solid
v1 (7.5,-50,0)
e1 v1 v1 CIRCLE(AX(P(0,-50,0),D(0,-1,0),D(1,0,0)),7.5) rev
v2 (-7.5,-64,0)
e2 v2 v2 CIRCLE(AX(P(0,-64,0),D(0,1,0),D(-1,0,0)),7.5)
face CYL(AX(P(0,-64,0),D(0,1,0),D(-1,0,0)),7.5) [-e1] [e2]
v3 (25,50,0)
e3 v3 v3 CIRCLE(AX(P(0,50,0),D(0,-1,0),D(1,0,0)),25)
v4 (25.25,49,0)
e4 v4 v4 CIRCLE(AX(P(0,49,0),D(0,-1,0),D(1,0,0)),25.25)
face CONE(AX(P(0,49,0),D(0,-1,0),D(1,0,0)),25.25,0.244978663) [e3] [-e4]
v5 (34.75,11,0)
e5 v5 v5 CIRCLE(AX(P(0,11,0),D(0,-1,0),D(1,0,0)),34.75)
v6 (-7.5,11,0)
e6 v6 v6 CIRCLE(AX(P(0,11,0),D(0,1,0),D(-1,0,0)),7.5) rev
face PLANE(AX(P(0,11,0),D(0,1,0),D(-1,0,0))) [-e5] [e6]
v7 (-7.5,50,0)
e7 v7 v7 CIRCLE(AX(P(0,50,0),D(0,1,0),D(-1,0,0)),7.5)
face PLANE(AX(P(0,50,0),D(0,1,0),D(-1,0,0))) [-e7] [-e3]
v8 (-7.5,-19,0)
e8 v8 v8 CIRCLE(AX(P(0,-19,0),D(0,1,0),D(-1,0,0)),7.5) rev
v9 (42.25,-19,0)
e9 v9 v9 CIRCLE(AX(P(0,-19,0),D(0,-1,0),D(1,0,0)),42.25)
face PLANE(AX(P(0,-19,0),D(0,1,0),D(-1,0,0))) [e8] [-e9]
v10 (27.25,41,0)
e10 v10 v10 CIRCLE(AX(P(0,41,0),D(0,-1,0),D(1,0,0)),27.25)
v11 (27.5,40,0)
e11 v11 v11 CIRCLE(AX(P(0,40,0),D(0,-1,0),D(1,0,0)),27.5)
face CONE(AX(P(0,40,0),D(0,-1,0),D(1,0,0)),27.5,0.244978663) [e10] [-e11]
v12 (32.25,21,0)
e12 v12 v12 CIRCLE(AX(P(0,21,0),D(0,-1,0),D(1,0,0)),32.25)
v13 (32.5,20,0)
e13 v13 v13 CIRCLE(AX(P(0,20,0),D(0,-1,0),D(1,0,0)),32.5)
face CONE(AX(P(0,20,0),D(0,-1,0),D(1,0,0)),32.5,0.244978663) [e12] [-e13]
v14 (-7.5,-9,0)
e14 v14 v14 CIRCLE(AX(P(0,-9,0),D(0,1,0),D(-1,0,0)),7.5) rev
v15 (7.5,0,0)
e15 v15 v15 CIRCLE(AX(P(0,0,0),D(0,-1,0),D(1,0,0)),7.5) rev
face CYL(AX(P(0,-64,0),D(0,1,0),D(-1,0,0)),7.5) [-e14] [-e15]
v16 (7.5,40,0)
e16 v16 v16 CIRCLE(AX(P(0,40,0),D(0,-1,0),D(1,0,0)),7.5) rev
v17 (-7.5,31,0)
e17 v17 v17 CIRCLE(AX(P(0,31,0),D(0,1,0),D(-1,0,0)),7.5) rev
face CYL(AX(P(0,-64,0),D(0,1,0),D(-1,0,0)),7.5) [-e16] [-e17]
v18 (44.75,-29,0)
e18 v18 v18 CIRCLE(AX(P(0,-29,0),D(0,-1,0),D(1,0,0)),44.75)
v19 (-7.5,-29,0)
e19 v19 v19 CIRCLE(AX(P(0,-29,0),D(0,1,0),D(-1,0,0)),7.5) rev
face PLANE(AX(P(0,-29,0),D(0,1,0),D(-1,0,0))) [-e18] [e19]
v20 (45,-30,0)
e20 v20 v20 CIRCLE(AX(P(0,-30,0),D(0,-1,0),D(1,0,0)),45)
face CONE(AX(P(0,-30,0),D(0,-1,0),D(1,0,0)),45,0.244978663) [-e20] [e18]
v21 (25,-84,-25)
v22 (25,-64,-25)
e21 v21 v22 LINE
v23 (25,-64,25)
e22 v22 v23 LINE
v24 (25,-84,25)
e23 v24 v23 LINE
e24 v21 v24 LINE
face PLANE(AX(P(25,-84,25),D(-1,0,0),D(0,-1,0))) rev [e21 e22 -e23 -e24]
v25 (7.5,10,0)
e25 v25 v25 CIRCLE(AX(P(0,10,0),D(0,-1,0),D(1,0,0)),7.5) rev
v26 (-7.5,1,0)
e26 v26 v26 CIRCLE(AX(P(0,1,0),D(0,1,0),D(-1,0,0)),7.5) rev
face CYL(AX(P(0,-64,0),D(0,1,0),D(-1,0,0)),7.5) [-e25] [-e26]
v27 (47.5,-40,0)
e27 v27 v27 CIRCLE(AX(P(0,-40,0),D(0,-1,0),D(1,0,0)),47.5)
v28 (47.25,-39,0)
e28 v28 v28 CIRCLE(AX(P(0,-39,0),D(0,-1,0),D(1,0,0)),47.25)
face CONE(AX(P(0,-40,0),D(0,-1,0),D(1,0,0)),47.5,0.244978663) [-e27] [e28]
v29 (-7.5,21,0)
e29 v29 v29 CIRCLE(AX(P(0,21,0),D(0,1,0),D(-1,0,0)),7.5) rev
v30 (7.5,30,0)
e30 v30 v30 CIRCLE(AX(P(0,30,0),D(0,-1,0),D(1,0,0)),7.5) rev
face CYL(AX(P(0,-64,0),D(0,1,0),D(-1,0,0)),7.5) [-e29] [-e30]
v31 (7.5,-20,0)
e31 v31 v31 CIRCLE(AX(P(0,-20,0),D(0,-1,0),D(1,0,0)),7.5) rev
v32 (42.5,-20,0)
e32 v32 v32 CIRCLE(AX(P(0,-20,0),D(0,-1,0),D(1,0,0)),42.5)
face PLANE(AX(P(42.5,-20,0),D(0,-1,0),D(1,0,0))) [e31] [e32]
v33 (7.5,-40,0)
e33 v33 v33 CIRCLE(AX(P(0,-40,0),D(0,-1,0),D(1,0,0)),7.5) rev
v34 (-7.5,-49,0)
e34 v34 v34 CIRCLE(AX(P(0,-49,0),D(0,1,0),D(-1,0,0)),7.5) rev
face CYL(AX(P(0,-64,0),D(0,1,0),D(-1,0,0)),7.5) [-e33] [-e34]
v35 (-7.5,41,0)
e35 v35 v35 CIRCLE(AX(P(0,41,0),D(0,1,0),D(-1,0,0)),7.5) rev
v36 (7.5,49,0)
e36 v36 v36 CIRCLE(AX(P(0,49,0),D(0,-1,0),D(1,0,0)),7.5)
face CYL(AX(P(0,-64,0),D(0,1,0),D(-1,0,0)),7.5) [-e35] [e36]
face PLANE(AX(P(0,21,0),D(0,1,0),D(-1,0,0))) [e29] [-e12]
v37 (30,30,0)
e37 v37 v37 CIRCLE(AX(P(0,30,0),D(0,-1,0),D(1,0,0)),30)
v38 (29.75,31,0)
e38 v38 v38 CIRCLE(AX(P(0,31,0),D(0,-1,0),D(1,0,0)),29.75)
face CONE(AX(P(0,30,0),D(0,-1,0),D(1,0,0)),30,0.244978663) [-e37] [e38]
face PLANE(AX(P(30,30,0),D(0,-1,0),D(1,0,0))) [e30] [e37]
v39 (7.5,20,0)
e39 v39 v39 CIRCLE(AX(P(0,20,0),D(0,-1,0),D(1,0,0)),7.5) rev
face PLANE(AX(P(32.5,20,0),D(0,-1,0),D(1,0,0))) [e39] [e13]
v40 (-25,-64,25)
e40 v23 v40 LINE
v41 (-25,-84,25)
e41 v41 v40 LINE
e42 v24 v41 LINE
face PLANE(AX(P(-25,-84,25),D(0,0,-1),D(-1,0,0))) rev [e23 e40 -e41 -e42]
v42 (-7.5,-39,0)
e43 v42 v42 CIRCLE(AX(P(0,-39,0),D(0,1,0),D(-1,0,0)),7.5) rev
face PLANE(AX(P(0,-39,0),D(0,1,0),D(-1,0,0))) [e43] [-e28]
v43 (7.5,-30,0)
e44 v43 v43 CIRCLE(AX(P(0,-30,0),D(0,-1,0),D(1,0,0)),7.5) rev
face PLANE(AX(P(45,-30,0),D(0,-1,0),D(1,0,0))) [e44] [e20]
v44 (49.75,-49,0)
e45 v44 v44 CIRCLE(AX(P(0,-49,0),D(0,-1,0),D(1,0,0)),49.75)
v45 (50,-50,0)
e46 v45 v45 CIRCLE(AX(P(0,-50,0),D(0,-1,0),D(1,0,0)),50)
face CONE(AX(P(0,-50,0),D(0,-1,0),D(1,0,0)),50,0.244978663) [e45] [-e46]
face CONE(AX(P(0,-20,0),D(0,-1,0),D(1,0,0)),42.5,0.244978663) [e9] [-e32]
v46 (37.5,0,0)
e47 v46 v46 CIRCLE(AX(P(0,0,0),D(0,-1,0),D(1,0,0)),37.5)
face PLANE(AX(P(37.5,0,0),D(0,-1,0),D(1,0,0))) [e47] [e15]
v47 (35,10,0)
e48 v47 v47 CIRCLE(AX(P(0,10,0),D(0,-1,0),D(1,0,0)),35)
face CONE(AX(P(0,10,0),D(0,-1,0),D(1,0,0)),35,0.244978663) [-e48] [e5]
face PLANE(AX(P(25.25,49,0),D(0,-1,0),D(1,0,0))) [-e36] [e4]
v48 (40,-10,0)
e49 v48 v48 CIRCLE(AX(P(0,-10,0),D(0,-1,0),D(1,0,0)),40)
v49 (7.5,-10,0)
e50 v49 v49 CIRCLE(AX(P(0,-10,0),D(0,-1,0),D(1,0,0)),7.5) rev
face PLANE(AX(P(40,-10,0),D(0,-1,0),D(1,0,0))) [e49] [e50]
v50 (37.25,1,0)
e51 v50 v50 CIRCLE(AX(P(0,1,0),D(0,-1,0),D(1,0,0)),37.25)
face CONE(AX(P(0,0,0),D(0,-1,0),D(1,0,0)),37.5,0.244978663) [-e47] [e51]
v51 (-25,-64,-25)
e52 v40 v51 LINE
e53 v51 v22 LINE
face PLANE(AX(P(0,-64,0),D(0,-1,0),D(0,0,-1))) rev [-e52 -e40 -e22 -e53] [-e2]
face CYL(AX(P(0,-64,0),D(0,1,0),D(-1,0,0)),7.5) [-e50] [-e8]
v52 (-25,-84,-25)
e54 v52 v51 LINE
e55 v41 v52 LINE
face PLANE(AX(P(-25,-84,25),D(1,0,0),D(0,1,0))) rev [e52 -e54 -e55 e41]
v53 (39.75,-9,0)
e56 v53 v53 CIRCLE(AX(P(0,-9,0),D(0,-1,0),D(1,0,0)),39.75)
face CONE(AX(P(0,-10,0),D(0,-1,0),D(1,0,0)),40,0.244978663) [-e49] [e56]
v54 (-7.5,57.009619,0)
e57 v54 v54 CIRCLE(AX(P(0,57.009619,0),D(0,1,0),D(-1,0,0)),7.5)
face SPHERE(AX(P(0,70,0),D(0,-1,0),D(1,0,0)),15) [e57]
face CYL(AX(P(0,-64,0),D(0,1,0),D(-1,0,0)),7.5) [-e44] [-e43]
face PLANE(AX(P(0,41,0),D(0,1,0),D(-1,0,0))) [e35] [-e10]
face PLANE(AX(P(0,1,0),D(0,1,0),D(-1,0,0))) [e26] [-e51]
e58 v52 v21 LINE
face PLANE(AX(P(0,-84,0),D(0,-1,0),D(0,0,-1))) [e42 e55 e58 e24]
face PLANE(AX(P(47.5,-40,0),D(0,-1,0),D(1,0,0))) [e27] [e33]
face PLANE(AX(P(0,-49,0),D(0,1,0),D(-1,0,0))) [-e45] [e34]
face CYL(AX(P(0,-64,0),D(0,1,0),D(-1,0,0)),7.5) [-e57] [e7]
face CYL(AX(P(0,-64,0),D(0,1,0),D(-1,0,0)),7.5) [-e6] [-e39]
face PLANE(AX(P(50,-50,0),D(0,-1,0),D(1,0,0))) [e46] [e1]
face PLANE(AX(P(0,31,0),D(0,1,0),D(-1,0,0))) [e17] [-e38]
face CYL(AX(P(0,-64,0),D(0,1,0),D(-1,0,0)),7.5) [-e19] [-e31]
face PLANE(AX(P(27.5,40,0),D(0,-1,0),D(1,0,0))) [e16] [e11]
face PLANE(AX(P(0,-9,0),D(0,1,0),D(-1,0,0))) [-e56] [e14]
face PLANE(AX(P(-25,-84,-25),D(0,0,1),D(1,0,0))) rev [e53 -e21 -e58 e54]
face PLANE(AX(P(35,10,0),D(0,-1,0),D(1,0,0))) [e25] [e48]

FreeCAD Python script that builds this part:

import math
import FreeCAD as App
import Part
import Sketcher
Q = App.Units.Quantity


def add_polygon(sketch, points):
    """Adds a closed chain of lines whose ends are joined by coincident constraints."""
    first, n = sketch.GeometryCount, len(points)
    for a, b in zip(points, points[1:] + points[:1]):
        sketch.addGeometry(Part.LineSegment(App.Vector(*a, 0), App.Vector(*b, 0)), False)
    for i in range(n):
        sketch.addConstraint(Sketcher.Constraint("Coincident", first + i, 2, first + (i + 1) % n, 1))

doc = App.newDocument("Part")
body = doc.addObject("PartDesign::Body", "Body")
body.AllowCompound = True

sketch1 = doc.addObject("Sketcher::SketchObject", "Sketch")
body.addObject(sketch1)
sketch1.AttachmentSupport = (doc.XY_Plane, [""])
sketch1.MapMode = "FlatFace"
add_polygon(sketch1, [(25, 50), (0, 50), (0, 49), (25.2, 49)])
add_polygon(sketch1, [(0, -50), (50, -50), (49.8, -49), (0, -49)])
add_polygon(sketch1, [(47.2, -39), (0, -39), (0, -40), (47.5, -40)])
add_polygon(sketch1, [(44.8, -29), (0, -29), (0, -30), (45, -30)])
add_polygon(sketch1, [(42.2, -19), (0, -19), (0, -20), (42.5, -20)])
add_polygon(sketch1, [(39.8, -9), (0, -9), (0, -10), (40, -10)])
add_polygon(sketch1, [(37.2, 1), (0, 1), (0, 0), (37.5, 0)])
add_polygon(sketch1, [(34.8, 11), (0, 11), (0, 10), (35, 10)])
add_polygon(sketch1, [(32.2, 21), (0, 21), (0, 20), (32.5, 20)])
add_polygon(sketch1, [(29.8, 31), (0, 31), (0, 30), (30, 30)])
add_polygon(sketch1, [(27.2, 41), (0, 41), (0, 40), (27.5, 40)])
sketch1.addConstraint([
    Sketcher.Constraint("Horizontal", 0),
    Sketcher.Constraint("Vertical", 1),
    Sketcher.Constraint("Horizontal", 2),
    Sketcher.Constraint("Horizontal", 4),
    Sketcher.Constraint("Horizontal", 6),
    Sketcher.Constraint("Vertical", 7),
    Sketcher.Constraint("Horizontal", 8),
    Sketcher.Constraint("Vertical", 9),
    Sketcher.Constraint("Horizontal", 10),
    Sketcher.Constraint("Horizontal", 12),
    Sketcher.Constraint("Vertical", 13),
    Sketcher.Constraint("Horizontal", 14),
    Sketcher.Constraint("Horizontal", 16),
    Sketcher.Constraint("Vertical", 17),
    Sketcher.Constraint("Horizontal", 18),
    Sketcher.Constraint("Horizontal", 20),
    Sketcher.Constraint("Vertical", 21),
    Sketcher.Constraint("Horizontal", 22),
    Sketcher.Constraint("Horizontal", 24),
    Sketcher.Constraint("Vertical", 25),
    Sketcher.Constraint("Horizontal", 26),
    Sketcher.Constraint("Horizontal", 28),
    Sketcher.Constraint("Vertical", 29),
    Sketcher.Constraint("Horizontal", 30),
    Sketcher.Constraint("Horizontal", 32),
    Sketcher.Constraint("Vertical", 33),
    Sketcher.Constraint("Horizontal", 34),
    Sketcher.Constraint("Horizontal", 36),
    Sketcher.Constraint("Vertical", 37),
    Sketcher.Constraint("Horizontal", 38),
    Sketcher.Constraint("Horizontal", 40),
    Sketcher.Constraint("Vertical", 41),
    Sketcher.Constraint("Horizontal", 42),
    Sketcher.Constraint("Coincident", 25, 2, -1, 1),
    Sketcher.Constraint("Symmetric", 1, 2, 6, 2, -1, 1),
    Sketcher.Constraint("Symmetric", 21, 2, 29, 2, -1, 1),
    Sketcher.Constraint("Symmetric", 17, 2, 33, 2, -1, 1),
    Sketcher.Constraint("Symmetric", 13, 2, 37, 2, -1, 1),
    Sketcher.Constraint("Symmetric", 9, 2, 41, 2, -1, 1),
    Sketcher.Constraint("Symmetric", 0, 2, 7, 2, -1),
    Sketcher.Constraint("PointOnObject", 8, 2, -2),
    Sketcher.Constraint("PointOnObject", 12, 2, -2),
    Sketcher.Constraint("PointOnObject", 16, 2, -2),
    Sketcher.Constraint("PointOnObject", 20, 2, -2),
    Sketcher.Constraint("Parallel", 3, 5),
    Sketcher.Constraint("Parallel", 5, 11),
    Sketcher.Constraint("Parallel", 11, 15),
    Sketcher.Constraint("Parallel", 15, 19),
    Sketcher.Constraint("Parallel", 19, 23),
    Sketcher.Constraint("Parallel", 23, 27),
    Sketcher.Constraint("Parallel", 27, 31),
    Sketcher.Constraint("Parallel", 31, 35),
    Sketcher.Constraint("Parallel", 35, 39),
    Sketcher.Constraint("Parallel", 39, 43),
    Sketcher.Constraint("Equal", 7, 9),
    Sketcher.Constraint("Equal", 9, 13),
    Sketcher.Constraint("Equal", 13, 17),
    Sketcher.Constraint("Equal", 17, 21),
    Sketcher.Constraint("Equal", 21, 25),
    Sketcher.Constraint("Equal", 25, 29),
    Sketcher.Constraint("Equal", 29, 33),
    Sketcher.Constraint("Equal", 33, 37),
    Sketcher.Constraint("Equal", 37, 41),
    Sketcher.Constraint("DistanceX", 0, 2, 0, 1, Q("25 mm")),
    Sketcher.Constraint("DistanceX", 4, 1, 4, 2, Q("50 mm")),
    Sketcher.Constraint("DistanceX", 14, 1, 14, 2, Q("45 mm")),
    Sketcher.Constraint("DistanceX", 22, 1, 22, 2, Q("40 mm")),
    Sketcher.Constraint("DistanceX", 30, 1, 30, 2, Q("35 mm")),
    Sketcher.Constraint("DistanceX", 38, 1, 38, 2, Q("30 mm")),
    Sketcher.Constraint("DistanceY", 1, 2, 1, 1, Q("1 mm")),
    Sketcher.Constraint("DistanceX", 10, 1, 10, 2, Q("47.5 mm")),
    Sketcher.Constraint("DistanceX", 18, 1, 18, 2, Q("42.5 mm")),
    Sketcher.Constraint("DistanceX", 26, 1, 26, 2, Q("37.5 mm")),
    Sketcher.Constraint("DistanceX", 34, 1, 34, 2, Q("32.5 mm")),
    Sketcher.Constraint("DistanceX", 42, 1, 42, 2, Q("27.5 mm")),
    Sketcher.Constraint("DistanceY", -1, 1, 0, 2, Q("50 mm")),
    Sketcher.Constraint("DistanceY", 8, 2, -1, 1, Q("39 mm")),
    Sketcher.Constraint("DistanceY", 12, 2, -1, 1, Q("29 mm")),
    Sketcher.Constraint("DistanceY", 16, 2, -1, 1, Q("19 mm")),
    Sketcher.Constraint("DistanceY", 20, 2, -1, 1, Q("9 mm")),
    Sketcher.Constraint("DistanceX", 2, 2, 43, 2, Q("2 mm")),
])
revolution = doc.addObject("PartDesign::Revolution", "Revolution")
body.addObject(revolution)
revolution.Profile = sketch1
revolution.ReferenceAxis = (sketch1, ["V_Axis"])
revolution.Angle = 360

sketch2 = doc.addObject("Sketcher::SketchObject", "Sketch001")
body.addObject(sketch2)
sketch2.AttachmentSupport = (doc.XZ_Plane, [""])
sketch2.MapMode = "FlatFace"
sketch2.AttachmentOffset = App.Placement(App.Vector(0, 0, 49), App.Rotation())
sketch2.addGeometry(Part.Circle(App.Vector(0, 0, 0), App.Vector(0, 0, 1), 8), False)
sketch2.addConstraint([
    Sketcher.Constraint("Coincident", 0, 3, -1, 1),
    Sketcher.Constraint("Diameter", 0, Q("15 mm")),
])
pad1 = doc.addObject("PartDesign::Pad", "Pad")
body.addObject(pad1)
pad1.Profile = sketch2
pad1.Type = "TwoLengths"
pad1.Length = 109
pad1.Length2 = 15
pad1.Reversed = True

sketch3 = doc.addObject("Sketcher::SketchObject", "Sketch002")
body.addObject(sketch3)
sketch3.AttachmentSupport = (doc.XY_Plane, [""])
sketch3.MapMode = "FlatFace"
sketch3.addGeometry([
    Part.LineSegment(App.Vector(0, 85, 0), App.Vector(0, 55, 0)),
    Part.ArcOfCircle(Part.Circle(App.Vector(0, 70, 0), App.Vector(0, 0, 1), 15), math.radians(-90), math.radians(90)),
], False)
sketch3.addConstraint([
    Sketcher.Constraint("Coincident", 0, 1, 1, 2),
    Sketcher.Constraint("Coincident", 1, 1, 0, 2),
    Sketcher.Constraint("Vertical", 0),
    Sketcher.Constraint("PointOnObject", 1, 3, -2),
    Sketcher.Constraint("PointOnObject", 0, 1, -2),
    Sketcher.Constraint("Radius", 1, Q("15 mm")),
    Sketcher.Constraint("DistanceY", -1, 1, 1, 3, Q("70 mm")),
])
revolution2 = doc.addObject("PartDesign::Revolution", "Revolution001")
body.addObject(revolution2)
revolution2.Profile = sketch3
revolution2.ReferenceAxis = (sketch3, ["V_Axis"])
revolution2.Angle = 360

sketch4 = doc.addObject("Sketcher::SketchObject", "Sketch003")
body.addObject(sketch4)
sketch4.AttachmentSupport = (doc.XZ_Plane, [""])
sketch4.MapMode = "FlatFace"
sketch4.AttachmentOffset = App.Placement(App.Vector(0, 0, 64), App.Rotation())
add_polygon(sketch4, [(-25, 25), (-25, -25), (25, -25), (25, 25)])
sketch4.addConstraint([
    Sketcher.Constraint("Vertical", 0),
    Sketcher.Constraint("Horizontal", 1),
    Sketcher.Constraint("Vertical", 2),
    Sketcher.Constraint("Horizontal", 3),
    Sketcher.Constraint("Symmetric", 0, 2, 2, 2, -1, 1),
    Sketcher.Constraint("Equal", 3, 0),
    Sketcher.Constraint("DistanceX", 1, 1, 1, 2, Q("50 mm")),
])
pad2 = doc.addObject("PartDesign::Pad", "Pad001")
body.addObject(pad2)
pad2.Profile = sketch4
pad2.Length = 20

doc.recompute()
